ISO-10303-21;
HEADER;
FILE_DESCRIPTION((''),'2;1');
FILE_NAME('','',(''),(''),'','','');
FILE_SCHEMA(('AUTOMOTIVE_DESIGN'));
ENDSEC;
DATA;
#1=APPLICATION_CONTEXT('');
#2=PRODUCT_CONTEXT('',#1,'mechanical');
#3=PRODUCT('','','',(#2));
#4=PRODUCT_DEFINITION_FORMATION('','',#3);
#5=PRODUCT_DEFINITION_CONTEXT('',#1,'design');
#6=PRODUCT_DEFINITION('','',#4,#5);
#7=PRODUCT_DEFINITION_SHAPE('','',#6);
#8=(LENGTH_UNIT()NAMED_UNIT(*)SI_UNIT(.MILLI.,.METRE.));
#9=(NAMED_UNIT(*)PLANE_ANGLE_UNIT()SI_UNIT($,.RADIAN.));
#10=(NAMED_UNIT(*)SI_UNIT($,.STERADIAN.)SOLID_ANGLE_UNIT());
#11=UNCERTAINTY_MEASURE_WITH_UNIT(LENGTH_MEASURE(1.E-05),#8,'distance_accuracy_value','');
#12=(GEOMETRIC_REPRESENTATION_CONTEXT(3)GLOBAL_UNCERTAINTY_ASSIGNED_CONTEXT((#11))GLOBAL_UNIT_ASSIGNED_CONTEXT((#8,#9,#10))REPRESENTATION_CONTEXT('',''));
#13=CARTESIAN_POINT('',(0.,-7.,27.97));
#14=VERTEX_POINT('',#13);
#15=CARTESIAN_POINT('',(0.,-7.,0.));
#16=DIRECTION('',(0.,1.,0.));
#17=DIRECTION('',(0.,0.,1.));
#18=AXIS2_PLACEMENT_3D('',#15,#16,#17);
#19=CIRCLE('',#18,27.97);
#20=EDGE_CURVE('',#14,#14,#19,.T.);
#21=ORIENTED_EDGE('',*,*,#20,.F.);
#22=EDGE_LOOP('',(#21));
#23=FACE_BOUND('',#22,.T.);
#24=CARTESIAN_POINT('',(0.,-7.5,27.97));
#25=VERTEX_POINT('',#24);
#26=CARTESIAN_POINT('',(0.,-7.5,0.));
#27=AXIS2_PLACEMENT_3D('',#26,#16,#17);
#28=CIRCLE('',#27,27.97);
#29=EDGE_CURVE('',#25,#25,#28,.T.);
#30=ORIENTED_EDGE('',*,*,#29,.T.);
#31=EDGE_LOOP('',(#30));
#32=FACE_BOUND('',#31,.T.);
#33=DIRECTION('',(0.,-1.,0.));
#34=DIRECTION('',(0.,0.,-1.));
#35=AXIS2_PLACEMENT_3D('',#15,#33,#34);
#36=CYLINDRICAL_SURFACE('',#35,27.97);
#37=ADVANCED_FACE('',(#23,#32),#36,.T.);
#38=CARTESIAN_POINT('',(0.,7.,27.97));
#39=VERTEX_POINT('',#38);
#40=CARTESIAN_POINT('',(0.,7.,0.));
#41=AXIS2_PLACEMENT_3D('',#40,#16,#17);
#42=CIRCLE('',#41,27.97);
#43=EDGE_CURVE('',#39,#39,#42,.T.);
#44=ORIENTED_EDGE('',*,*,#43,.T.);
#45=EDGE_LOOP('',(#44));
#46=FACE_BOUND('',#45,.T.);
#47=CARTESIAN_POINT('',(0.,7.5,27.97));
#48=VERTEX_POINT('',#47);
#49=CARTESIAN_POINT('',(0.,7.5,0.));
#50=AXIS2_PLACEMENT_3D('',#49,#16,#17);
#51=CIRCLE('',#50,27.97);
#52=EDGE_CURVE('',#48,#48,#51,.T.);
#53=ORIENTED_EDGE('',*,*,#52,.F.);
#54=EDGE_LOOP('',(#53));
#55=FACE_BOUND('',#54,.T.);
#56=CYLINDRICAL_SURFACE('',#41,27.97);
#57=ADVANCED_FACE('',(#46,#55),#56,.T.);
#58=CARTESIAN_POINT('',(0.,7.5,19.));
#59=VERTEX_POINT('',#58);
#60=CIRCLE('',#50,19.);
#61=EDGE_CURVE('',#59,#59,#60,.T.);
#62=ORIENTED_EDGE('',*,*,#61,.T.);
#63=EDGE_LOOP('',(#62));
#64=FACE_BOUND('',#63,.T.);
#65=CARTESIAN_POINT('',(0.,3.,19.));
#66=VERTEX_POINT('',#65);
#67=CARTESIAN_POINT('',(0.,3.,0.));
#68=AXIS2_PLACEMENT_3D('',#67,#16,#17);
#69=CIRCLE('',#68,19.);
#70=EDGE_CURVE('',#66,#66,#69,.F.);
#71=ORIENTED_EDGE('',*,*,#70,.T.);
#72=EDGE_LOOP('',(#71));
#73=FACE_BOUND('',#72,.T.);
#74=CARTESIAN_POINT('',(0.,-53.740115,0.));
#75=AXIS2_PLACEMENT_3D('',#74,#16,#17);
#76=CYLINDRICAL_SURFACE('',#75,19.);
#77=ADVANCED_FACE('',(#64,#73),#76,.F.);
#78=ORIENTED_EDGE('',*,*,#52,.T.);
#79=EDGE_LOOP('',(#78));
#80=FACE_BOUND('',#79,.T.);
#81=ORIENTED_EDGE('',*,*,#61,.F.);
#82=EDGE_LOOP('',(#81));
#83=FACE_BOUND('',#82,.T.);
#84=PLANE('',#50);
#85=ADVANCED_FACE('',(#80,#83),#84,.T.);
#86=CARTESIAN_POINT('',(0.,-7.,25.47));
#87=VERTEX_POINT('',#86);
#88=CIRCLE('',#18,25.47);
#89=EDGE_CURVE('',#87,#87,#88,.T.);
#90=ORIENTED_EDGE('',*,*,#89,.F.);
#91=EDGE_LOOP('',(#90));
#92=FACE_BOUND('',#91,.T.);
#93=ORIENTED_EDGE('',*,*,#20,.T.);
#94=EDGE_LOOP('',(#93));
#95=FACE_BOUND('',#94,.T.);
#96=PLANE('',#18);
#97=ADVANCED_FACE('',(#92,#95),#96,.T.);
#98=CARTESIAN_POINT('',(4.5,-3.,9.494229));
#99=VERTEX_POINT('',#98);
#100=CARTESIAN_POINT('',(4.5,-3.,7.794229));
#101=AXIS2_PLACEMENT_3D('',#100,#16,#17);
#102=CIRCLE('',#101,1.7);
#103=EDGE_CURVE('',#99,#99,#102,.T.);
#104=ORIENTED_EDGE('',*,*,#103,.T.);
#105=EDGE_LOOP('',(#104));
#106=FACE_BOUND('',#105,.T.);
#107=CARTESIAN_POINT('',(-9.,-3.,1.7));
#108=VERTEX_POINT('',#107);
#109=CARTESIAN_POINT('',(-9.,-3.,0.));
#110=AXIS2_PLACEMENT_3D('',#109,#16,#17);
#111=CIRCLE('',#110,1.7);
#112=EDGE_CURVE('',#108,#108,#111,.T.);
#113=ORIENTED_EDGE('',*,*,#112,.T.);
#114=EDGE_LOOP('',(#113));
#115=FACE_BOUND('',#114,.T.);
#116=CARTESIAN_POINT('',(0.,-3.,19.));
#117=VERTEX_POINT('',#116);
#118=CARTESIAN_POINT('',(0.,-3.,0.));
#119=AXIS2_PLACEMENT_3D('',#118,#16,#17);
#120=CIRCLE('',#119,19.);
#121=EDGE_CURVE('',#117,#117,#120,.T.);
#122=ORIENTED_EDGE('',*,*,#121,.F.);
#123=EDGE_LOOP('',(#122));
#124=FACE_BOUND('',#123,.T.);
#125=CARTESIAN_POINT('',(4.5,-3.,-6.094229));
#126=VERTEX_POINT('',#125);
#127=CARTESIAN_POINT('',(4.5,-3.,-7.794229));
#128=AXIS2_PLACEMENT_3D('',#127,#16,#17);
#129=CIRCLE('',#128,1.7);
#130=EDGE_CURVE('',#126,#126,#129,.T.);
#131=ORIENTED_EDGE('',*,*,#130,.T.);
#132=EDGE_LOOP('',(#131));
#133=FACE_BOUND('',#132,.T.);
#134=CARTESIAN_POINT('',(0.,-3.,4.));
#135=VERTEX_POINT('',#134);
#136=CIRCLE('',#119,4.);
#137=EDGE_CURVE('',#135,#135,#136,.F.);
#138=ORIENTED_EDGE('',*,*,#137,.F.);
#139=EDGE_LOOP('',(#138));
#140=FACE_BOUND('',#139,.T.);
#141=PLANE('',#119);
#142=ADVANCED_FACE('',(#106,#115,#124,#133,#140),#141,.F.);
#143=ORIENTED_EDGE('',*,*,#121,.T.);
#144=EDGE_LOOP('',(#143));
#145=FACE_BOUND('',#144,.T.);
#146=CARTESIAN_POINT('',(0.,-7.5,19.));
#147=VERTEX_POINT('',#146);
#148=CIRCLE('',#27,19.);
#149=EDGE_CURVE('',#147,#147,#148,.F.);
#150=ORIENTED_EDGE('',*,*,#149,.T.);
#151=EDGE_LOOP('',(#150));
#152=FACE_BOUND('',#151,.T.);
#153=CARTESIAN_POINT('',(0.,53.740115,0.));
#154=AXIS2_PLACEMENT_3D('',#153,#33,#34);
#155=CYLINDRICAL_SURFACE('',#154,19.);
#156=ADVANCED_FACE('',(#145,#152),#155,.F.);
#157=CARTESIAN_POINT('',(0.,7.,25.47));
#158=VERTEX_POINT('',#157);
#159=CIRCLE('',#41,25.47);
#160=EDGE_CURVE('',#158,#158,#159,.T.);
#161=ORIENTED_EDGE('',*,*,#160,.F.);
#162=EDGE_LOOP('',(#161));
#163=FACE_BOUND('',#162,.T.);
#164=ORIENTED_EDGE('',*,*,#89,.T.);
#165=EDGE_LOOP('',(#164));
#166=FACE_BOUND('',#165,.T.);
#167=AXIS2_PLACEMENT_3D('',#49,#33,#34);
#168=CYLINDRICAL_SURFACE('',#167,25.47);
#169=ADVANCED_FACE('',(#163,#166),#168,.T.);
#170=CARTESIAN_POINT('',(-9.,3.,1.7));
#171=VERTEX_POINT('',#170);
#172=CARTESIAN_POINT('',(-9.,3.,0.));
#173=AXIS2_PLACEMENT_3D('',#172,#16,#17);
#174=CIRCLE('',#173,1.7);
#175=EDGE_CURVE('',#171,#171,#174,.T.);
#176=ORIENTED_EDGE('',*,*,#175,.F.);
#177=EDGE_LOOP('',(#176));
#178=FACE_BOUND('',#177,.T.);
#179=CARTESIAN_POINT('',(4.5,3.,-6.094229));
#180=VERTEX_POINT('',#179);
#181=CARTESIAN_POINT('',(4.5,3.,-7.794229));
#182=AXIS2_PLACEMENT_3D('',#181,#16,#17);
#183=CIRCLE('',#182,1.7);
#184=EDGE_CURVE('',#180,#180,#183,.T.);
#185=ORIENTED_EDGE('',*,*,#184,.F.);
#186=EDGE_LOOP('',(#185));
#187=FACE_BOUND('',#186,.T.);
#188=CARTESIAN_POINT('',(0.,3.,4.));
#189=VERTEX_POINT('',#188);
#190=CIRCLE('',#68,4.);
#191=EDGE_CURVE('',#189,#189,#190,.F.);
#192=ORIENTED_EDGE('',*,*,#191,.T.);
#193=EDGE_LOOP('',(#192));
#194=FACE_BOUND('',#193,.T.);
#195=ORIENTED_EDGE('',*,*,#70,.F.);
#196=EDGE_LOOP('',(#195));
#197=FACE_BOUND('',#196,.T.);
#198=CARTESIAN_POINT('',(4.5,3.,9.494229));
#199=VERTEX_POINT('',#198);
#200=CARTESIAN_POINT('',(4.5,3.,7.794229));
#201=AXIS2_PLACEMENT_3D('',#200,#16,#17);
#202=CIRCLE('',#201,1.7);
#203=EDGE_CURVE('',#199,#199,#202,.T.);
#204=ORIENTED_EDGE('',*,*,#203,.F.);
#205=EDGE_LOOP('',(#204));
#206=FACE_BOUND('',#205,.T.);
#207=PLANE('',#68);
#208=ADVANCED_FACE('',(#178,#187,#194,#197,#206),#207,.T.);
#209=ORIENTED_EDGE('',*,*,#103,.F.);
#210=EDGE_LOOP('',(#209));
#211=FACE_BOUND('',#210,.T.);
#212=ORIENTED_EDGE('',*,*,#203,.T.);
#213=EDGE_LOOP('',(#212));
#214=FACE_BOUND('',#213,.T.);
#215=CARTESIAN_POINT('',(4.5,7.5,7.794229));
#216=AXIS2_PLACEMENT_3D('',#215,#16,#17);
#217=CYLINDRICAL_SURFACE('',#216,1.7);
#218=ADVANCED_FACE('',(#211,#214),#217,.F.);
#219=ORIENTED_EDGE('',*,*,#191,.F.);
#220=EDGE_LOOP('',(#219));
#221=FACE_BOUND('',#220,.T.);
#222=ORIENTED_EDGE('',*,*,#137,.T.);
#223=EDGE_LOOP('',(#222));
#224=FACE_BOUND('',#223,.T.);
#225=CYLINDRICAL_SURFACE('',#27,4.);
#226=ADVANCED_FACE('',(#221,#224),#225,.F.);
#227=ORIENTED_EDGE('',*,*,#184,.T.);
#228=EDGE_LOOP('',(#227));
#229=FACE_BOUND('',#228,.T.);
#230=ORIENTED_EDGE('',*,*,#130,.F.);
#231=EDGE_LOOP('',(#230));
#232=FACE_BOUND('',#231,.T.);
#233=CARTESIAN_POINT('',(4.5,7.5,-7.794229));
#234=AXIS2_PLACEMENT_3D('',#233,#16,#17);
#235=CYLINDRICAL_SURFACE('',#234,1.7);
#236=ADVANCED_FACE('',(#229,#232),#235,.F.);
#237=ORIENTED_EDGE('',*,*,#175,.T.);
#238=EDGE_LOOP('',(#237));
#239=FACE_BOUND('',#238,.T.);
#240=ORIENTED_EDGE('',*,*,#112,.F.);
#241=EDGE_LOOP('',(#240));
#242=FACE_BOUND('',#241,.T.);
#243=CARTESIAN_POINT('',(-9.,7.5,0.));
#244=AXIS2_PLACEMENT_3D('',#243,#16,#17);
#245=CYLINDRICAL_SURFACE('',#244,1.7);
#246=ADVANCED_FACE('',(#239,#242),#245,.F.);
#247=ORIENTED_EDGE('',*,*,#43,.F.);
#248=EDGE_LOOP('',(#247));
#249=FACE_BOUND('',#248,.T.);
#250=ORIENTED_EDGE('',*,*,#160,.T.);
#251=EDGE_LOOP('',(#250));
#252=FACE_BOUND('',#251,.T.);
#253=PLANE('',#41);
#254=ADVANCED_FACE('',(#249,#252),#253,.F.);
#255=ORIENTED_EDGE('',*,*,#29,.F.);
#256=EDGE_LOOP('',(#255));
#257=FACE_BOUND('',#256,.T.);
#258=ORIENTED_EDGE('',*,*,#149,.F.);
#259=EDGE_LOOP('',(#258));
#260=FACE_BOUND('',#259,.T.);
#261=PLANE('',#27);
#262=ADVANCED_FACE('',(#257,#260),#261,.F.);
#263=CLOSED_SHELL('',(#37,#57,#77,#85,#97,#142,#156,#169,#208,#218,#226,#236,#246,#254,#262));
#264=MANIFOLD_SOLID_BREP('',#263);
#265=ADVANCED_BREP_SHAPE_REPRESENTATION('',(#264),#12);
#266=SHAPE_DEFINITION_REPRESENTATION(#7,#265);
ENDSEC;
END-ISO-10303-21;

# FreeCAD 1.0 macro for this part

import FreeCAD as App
import Part
import Sketcher
from FreeCAD import Vector

doc = App.newDocument("Part")
body = doc.addObject("PartDesign::Body", "Body")

# Sketch on XZ plane
sketch1 = body.newObject("Sketcher::SketchObject", "Sketch")
sketch1.AttachmentSupport = (doc.getObject("XZ_Plane"), [""])
sketch1.MapMode = "FlatFace"
sketch1.addGeometry(Part.Circle(Vector(0, 0, 0), Vector(0, 0, 1), 25), False)
sketch1.addConstraint([
    Sketcher.Constraint("Coincident", 0, 3, -1, 1),
    Sketcher.Constraint("Diameter", 0, 50.94),
])
pad1 = body.newObject("PartDesign::Pad", "Pad")
pad1.Profile = sketch1
pad1.Length = 15
pad1.Midplane = True

# Sketch on XZ plane
sketch2 = body.newObject("Sketcher::SketchObject", "Sketch001")
sketch2.AttachmentSupport = (doc.getObject("XZ_Plane"), [""])
sketch2.MapMode = "FlatFace"
sketch2.AttachmentOffset = App.Placement(Vector(0, 0, -7.5), App.Rotation())
sketch2.addGeometry(Part.Circle(Vector(0, 0, 0), Vector(0, 0, 1), 28), False)
sketch2.addConstraint([
    Sketcher.Constraint("Coincident", 0, 3, -1, 1),
    Sketcher.Constraint("Diameter", 0, 55.94),
])
pad2 = body.newObject("PartDesign::Pad", "Pad001")
pad2.Profile = sketch2
pad2.Length = 0.5

# Sketch on XZ plane
sketch3 = body.newObject("Sketcher::SketchObject", "Sketch002")
sketch3.AttachmentSupport = (doc.getObject("XZ_Plane"), [""])
sketch3.MapMode = "FlatFace"
sketch3.AttachmentOffset = App.Placement(Vector(0, 0, 7), App.Rotation())
sketch3.addGeometry(Part.Circle(Vector(0, 0, 0), Vector(0, 0, 1), 28), False)
sketch3.addConstraint([
    Sketcher.Constraint("Coincident", 0, 3, -1, 1),
    Sketcher.Constraint("Diameter", 0, 55.94),
])
pad3 = body.newObject("PartDesign::Pad", "Pad002")
pad3.Profile = sketch3
pad3.Length = 0.5

# Sketch on XZ plane
sketch4 = body.newObject("Sketcher::SketchObject", "Sketch003")
sketch4.AttachmentSupport = (doc.getObject("XZ_Plane"), [""])
sketch4.MapMode = "FlatFace"
sketch4.AttachmentOffset = App.Placement(Vector(0, 0, 7.5), App.Rotation())
sketch4.addGeometry(Part.Circle(Vector(0, 0, 0), Vector(0, 0, 1), 19), False)
sketch4.addConstraint([
    Sketcher.Constraint("Coincident", 0, 3, -1, 1),
    Sketcher.Constraint("Diameter", 0, 38.0),
])
pad4 = body.newObject("PartDesign::Pad", "Pad003")
pad4.Profile = sketch4
pad4.Length = 21
pad4.Reversed = True

# Sketch on XZ plane
sketch5 = body.newObject("Sketcher::SketchObject", "Sketch004")
sketch5.AttachmentSupport = (doc.getObject("XZ_Plane"), [""])
sketch5.MapMode = "FlatFace"
sketch5.AttachmentOffset = App.Placement(Vector(0, 0, 7), App.Rotation())
sketch5.addGeometry(Part.Circle(Vector(0, 0, 0), Vector(0, 0, 1), 4), False)
sketch5.addConstraint([
    Sketcher.Constraint("Coincident", 0, 3, -1, 1),
    Sketcher.Constraint("Diameter", 0, 8.0),
])
pocket1 = body.newObject("PartDesign::Pocket", "Pocket")
pocket1.Profile = sketch5
pocket1.Type = "ThroughAll"
pocket1.Midplane = True

# Sketch on XZ plane
sketch6 = body.newObject("Sketcher::SketchObject", "Sketch005")
sketch6.AttachmentSupport = (doc.getObject("XZ_Plane"), [""])
sketch6.MapMode = "FlatFace"
sketch6.AttachmentOffset = App.Placement(Vector(0, 0, -3), App.Rotation())
sketch6.addGeometry(Part.Circle(Vector(0, 0, 0), Vector(0, 0, 1), 19), False)
sketch6.addConstraint([
    Sketcher.Constraint("Coincident", 0, 3, -1, 1),
    Sketcher.Constraint("Diameter", 0, 38.0),
])
pocket2 = body.newObject("PartDesign::Pocket", "Pocket001")
pocket2.Profile = sketch6
pocket2.Length = 10.5
doc.recompute()

mirrored = body.newObject("PartDesign::Mirrored", "Mirrored")
mirrored.Originals = [pocket2]
mirrored.MirrorPlane = (doc.getObject("XZ_Plane"), [""])
body.Tip = mirrored

# Sketch on XZ plane
sketch7 = body.newObject("Sketcher::SketchObject", "Sketch006")
sketch7.AttachmentSupport = (doc.getObject("XZ_Plane"), [""])
sketch7.MapMode = "FlatFace"
sketch7.AttachmentOffset = App.Placement(Vector(0, 0, -7.5), App.Rotation())
sketch7.addGeometry([
    Part.Circle(Vector(0, 0, 0), Vector(0, 0, 1), 1.7),
    Part.Circle(Vector(-9, 0, 0), Vector(0, 0, 1), 1.7),
    Part.Circle(Vector(4.5, -7.8, 0), Vector(0, 0, 1), 1.7),
    Part.Circle(Vector(4.5, 7.8, 0), Vector(0, 0, 1), 1.7),
], False)
sketch7.addConstraint([
    Sketcher.Constraint("Coincident", 0, 3, -1, 1),
    Sketcher.Constraint("Equal", 0, 1),
    Sketcher.Constraint("Equal", 1, 2),
    Sketcher.Constraint("Equal", 2, 3),
    Sketcher.Constraint("Symmetric", 2, 3, 3, 3, -1),
    Sketcher.Constraint("PointOnObject", 1, 3, -1),
    Sketcher.Constraint("Diameter", 0, 3.4),
    Sketcher.Constraint("DistanceX", 1, 3, -1, 1, 9.0),
    Sketcher.Constraint("DistanceX", -1, 1, 2, 3, 4.5),
    Sketcher.Constraint("DistanceY", 2, 3, -1, 1, 7.794229),
])
doc.recompute()
hole = body.newObject("PartDesign::Hole", "Hole")
hole.Profile = sketch7
hole.ThreadType = "None"
hole.Diameter = 3.4
hole.DepthType = "ThroughAll"
hole.Reversed = True

doc.recompute()
